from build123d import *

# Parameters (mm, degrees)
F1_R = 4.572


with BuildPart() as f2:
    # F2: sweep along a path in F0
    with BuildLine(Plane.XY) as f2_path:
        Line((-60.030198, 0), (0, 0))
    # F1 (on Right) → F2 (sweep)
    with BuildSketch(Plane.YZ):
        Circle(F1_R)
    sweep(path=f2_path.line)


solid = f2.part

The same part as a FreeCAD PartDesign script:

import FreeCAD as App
import Part
import Sketcher

V = App.Vector
Q = App.Units.Quantity

doc = App.newDocument("Part")
body = doc.addObject("PartDesign::Body", "Body")

sketch1 = body.newObject("Sketcher::SketchObject", "Sketch")
sketch1.AttachmentSupport = (doc.getObject("YZ_Plane"), [""])
sketch1.MapMode = "FlatFace"
sketch1.addGeometry(Part.Circle(V(0, 0, 0), V(0, 0, 1), 4.572), False)
sketch1.addConstraint(Sketcher.Constraint("Coincident", 0, 3, -1, 1))
sketch1.addConstraint(Sketcher.Constraint("Diameter", 0, Q("0.36 in")))

sketch2 = body.newObject("Sketcher::SketchObject", "Sketch001")
sketch2.AttachmentSupport = (doc.getObject("XY_Plane"), [""])
sketch2.MapMode = "FlatFace"
sketch2.addGeometry(Part.LineSegment(V(-60.030198, 0, 0), V(0, 0, 0)), False)
sketch2.addConstraint(Sketcher.Constraint("Horizontal", 0))
sketch2.addConstraint(Sketcher.Constraint("Coincident", 0, 2, -1, 1))
sketch2.addConstraint(Sketcher.Constraint("DistanceX", 0, 1, 0, 2, 60.030198))
doc.recompute()

additivepipe = body.newObject("PartDesign::AdditivePipe", "AdditivePipe")
additivepipe.Profile = sketch1
additivepipe.Spine = (sketch2, ["Edge1"])

doc.recompute()
